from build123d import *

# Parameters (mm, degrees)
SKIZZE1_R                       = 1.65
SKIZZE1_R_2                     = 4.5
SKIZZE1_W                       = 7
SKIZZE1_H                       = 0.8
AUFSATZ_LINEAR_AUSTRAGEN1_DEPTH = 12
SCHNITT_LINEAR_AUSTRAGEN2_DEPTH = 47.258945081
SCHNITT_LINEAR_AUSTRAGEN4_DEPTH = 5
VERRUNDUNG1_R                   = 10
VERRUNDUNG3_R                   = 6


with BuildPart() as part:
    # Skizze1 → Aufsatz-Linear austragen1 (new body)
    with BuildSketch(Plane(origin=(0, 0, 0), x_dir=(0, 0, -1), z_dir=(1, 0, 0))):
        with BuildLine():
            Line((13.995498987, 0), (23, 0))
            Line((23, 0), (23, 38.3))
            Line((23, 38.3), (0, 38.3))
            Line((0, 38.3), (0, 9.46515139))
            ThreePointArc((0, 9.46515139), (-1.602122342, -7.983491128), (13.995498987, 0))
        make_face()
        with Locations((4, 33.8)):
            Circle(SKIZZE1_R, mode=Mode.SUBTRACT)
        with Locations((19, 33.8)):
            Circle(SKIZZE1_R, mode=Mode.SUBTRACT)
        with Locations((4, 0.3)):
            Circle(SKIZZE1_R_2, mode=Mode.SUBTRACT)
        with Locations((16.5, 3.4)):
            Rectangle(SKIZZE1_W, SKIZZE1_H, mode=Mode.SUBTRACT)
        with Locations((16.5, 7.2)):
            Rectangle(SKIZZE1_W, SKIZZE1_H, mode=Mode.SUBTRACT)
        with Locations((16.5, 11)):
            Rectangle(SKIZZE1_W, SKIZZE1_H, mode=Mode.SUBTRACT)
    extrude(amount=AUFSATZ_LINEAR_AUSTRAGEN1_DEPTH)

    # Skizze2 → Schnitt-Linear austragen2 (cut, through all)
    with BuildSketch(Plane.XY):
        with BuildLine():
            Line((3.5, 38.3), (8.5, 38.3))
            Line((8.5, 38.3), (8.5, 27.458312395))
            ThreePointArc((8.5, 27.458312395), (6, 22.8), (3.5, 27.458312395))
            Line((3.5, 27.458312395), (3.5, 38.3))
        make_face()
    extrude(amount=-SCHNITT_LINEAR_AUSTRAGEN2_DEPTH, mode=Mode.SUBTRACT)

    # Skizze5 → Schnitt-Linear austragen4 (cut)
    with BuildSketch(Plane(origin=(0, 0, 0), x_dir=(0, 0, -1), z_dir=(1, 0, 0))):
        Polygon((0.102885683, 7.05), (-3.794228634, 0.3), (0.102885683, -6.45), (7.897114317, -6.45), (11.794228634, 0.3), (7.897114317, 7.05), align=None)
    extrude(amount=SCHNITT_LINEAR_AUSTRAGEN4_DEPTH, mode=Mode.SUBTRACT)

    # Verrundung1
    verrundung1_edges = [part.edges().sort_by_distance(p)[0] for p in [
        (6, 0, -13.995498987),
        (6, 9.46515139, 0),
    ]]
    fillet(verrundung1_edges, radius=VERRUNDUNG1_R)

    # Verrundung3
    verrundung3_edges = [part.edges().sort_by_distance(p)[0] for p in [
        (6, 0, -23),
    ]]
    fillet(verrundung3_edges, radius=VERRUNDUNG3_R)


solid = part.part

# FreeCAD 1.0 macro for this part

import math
import FreeCAD as App
import Part
import Sketcher

V = App.Vector
Q = App.Units.Quantity


def edges_at(feature, points):
    """Names of the edges that pass closest to the given points."""
    edges = feature.Shape.Edges
    near = lambda p: min(range(len(edges)), key=lambda i: edges[i].distToShape(Part.Vertex(*p))[0])
    return sorted({f"Edge{near(p) + 1}" for p in points})

doc = App.newDocument("Part")
params = doc.addObject("Spreadsheet::Sheet", "Params")
for row, (alias, value) in enumerate([
    ("sketch1_diameter", "9 mm"),
    ("sketch1_radius", "10 mm"),
    ("sketch1_diameter2", "3.3 mm"),
    ("sketch1_height", "23 mm"),
    ("sketch1_height2", "7 mm"),
    ("pad1_length", "12 mm"),
    ("sketch2_radius", "3 mm"),
    ("sketch2_width", "5 mm"),
    ("pocket2_length", "5 mm"),
    ("fillet_radius", "10 mm"),
    ("fillet2_radius", "6 mm"),
], start=1):
    params.set(f"A{row}", alias)
    params.set(f"B{row}", "=" + value)
    params.setAlias(f"B{row}", alias)

body = doc.addObject("PartDesign::Body", "Body")

sketch1 = body.newObject("Sketcher::SketchObject", "Sketch")
sketch1.AttachmentSupport = (doc.getObject("YZ_Plane"), [""])
sketch1.MapMode = "FlatFace"
sketch1.addGeometry(Part.LineSegment(V(0, -13.995499, 0), V(0, -23, 0)), False)
sketch1.addGeometry(Part.LineSegment(V(0, -23, 0), V(38.3, -23, 0)), False)
sketch1.addGeometry(Part.LineSegment(V(38.3, -23, 0), V(38.3, 0, 0)), False)
sketch1.addGeometry(Part.LineSegment(V(38.3, 0, 0), V(9.465151, 0, 0)), False)
sketch1.addGeometry(Part.ArcOfCircle(Part.Circle(V(0.3, -4, 0), V(0, 0, 1), 10), math.radians(23.578178), math.radians(268.280869)), False)
sketch1.addGeometry(Part.Circle(V(0.3, -4, 0), V(0, 0, 1), 4.5), False)
sketch1.addGeometry(Part.LineSegment(V(3, -20, 0), V(3, -13, 0)), False)
sketch1.addGeometry(Part.LineSegment(V(3, -13, 0), V(3.8, -13, 0)), False)
sketch1.addGeometry(Part.LineSegment(V(3.8, -13, 0), V(3.8, -20, 0)), False)
sketch1.addGeometry(Part.LineSegment(V(3.8, -20, 0), V(3, -20, 0)), False)
sketch1.addGeometry(Part.LineSegment(V(6.8, -20, 0), V(6.8, -13, 0)), False)
sketch1.addGeometry(Part.LineSegment(V(6.8, -13, 0), V(7.6, -13, 0)), False)
sketch1.addGeometry(Part.LineSegment(V(7.6, -13, 0), V(7.6, -20, 0)), False)
sketch1.addGeometry(Part.LineSegment(V(7.6, -20, 0), V(6.8, -20, 0)), False)
sketch1.addGeometry(Part.LineSegment(V(10.6, -20, 0), V(10.6, -13, 0)), False)
sketch1.addGeometry(Part.LineSegment(V(10.6, -13, 0), V(11.4, -13, 0)), False)
sketch1.addGeometry(Part.LineSegment(V(11.4, -13, 0), V(11.4, -20, 0)), False)
sketch1.addGeometry(Part.LineSegment(V(11.4, -20, 0), V(10.6, -20, 0)), False)
sketch1.addGeometry(Part.Circle(V(33.8, -4, 0), V(0, 0, 1), 1.65), False)
sketch1.addGeometry(Part.Circle(V(33.8, -19, 0), V(0, 0, 1), 1.65), False)
sketch1.addConstraint(Sketcher.Constraint("Coincident", 0, 2, 1, 1))
sketch1.addConstraint(Sketcher.Constraint("Coincident", 1, 2, 2, 1))
sketch1.addConstraint(Sketcher.Constraint("Coincident", 2, 2, 3, 1))
sketch1.addConstraint(Sketcher.Constraint("Coincident", 3, 2, 4, 1))
sketch1.addConstraint(Sketcher.Constraint("Coincident", 4, 2, 0, 1))
sketch1.addConstraint(Sketcher.Constraint("Coincident", 6, 2, 7, 1))
sketch1.addConstraint(Sketcher.Constraint("Coincident", 7, 2, 8, 1))
sketch1.addConstraint(Sketcher.Constraint("Coincident", 8, 2, 9, 1))
sketch1.addConstraint(Sketcher.Constraint("Coincident", 9, 2, 6, 1))
sketch1.addConstraint(Sketcher.Constraint("Coincident", 10, 2, 11, 1))
sketch1.addConstraint(Sketcher.Constraint("Coincident", 11, 2, 12, 1))
sketch1.addConstraint(Sketcher.Constraint("Coincident", 12, 2, 13, 1))
sketch1.addConstraint(Sketcher.Constraint("Coincident", 13, 2, 10, 1))
sketch1.addConstraint(Sketcher.Constraint("Coincident", 14, 2, 15, 1))
sketch1.addConstraint(Sketcher.Constraint("Coincident", 15, 2, 16, 1))
sketch1.addConstraint(Sketcher.Constraint("Coincident", 16, 2, 17, 1))
sketch1.addConstraint(Sketcher.Constraint("Coincident", 17, 2, 14, 1))
sketch1.addConstraint(Sketcher.Constraint("Vertical", 0))
sketch1.addConstraint(Sketcher.Constraint("Horizontal", 1))
sketch1.addConstraint(Sketcher.Constraint("Vertical", 2))
sketch1.addConstraint(Sketcher.Constraint("Horizontal", 3))
sketch1.addConstraint(Sketcher.Constraint("Vertical", 6))
sketch1.addConstraint(Sketcher.Constraint("Horizontal", 7))
sketch1.addConstraint(Sketcher.Constraint("Vertical", 8))
sketch1.addConstraint(Sketcher.Constraint("Horizontal", 9))
sketch1.addConstraint(Sketcher.Constraint("Vertical", 10))
sketch1.addConstraint(Sketcher.Constraint("Horizontal", 11))
sketch1.addConstraint(Sketcher.Constraint("Vertical", 12))
sketch1.addConstraint(Sketcher.Constraint("Horizontal", 13))
sketch1.addConstraint(Sketcher.Constraint("Vertical", 14))
sketch1.addConstraint(Sketcher.Constraint("Horizontal", 15))
sketch1.addConstraint(Sketcher.Constraint("Vertical", 16))
sketch1.addConstraint(Sketcher.Constraint("Horizontal", 17))
sketch1.addConstraint(Sketcher.Constraint("Coincident", 5, 3, 4, 3))
sketch1.addConstraint(Sketcher.Constraint("Equal", 18, 19))
sketch1.addConstraint(Sketcher.Constraint("PointOnObject", 0, 2, -2))
sketch1.addConstraint(Sketcher.Constraint("PointOnObject", 2, 2, -1))
sketch1.addConstraint(Sketcher.Constraint("Horizontal", 5, 3, 18, 3))
sketch1.addConstraint(Sketcher.Constraint("Horizontal", 7, 2, 10, 2))
sketch1.addConstraint(Sketcher.Constraint("Horizontal", 9, 2, 12, 2))
sketch1.addConstraint(Sketcher.Constraint("Horizontal", 11, 2, 14, 2))
sketch1.addConstraint(Sketcher.Constraint("Horizontal", 13, 2, 16, 2))
sketch1.addConstraint(Sketcher.Constraint("Vertical", 18, 3, 19, 3))
sketch1.addConstraint(Sketcher.Constraint("Equal", 9, 11))
sketch1.addConstraint(Sketcher.Constraint("Equal", 13, 15))
sketch1.addConstraint(Sketcher.Constraint("Diameter", 5, Q("9 mm")))
sketch1.addConstraint(Sketcher.Constraint("Radius", 4, Q("10 mm")))
sketch1.addConstraint(Sketcher.Constraint("Diameter", 18, Q("3.3 mm")))
sketch1.addConstraint(Sketcher.Constraint("DistanceY", 2, 1, 2, 2, Q("23 mm")))
sketch1.addConstraint(Sketcher.Constraint("DistanceY", 6, 1, 6, 2, Q("7 mm")))
sketch1.addConstraint(Sketcher.Constraint("DistanceX", 1, 1, 1, 2, Q("38.3 mm")))
sketch1.addConstraint(Sketcher.Constraint("DistanceX", 7, 1, 7, 2, Q("0.8 mm")))
sketch1.addConstraint(Sketcher.Constraint("DistanceY", 4, 3, -1, 1, Q("4 mm")))
sketch1.addConstraint(Sketcher.Constraint("DistanceY", 19, 3, -1, 1, Q("19 mm")))
sketch1.addConstraint(Sketcher.Constraint("DistanceX", -1, 1, 6, 2, Q("3 mm")))
sketch1.addConstraint(Sketcher.Constraint("DistanceY", 6, 2, -1, 1, Q("13 mm")))
sketch1.addConstraint(Sketcher.Constraint("DistanceX", 4, 3, 1, 2, Q("38 mm")))
sketch1.addConstraint(Sketcher.Constraint("DistanceX", 7, 2, 10, 2, Q("3 mm")))
sketch1.addConstraint(Sketcher.Constraint("DistanceX", 11, 2, 14, 2, Q("3 mm")))
sketch1.addConstraint(Sketcher.Constraint("DistanceX", -1, 1, 18, 3, Q("33.8 mm")))
sketch1.setExpression("Constraints[45]", "Params.sketch1_diameter")
sketch1.setExpression("Constraints[46]", "Params.sketch1_radius")
sketch1.setExpression("Constraints[47]", "Params.sketch1_diameter2")
sketch1.setExpression("Constraints[48]", "Params.sketch1_height")
sketch1.setExpression("Constraints[49]", "Params.sketch1_height2")
pad1 = body.newObject("PartDesign::Pad", "Pad")
pad1.Profile = sketch1
pad1.setExpression("Length", "Params.pad1_length")

sketch2 = body.newObject("Sketcher::SketchObject", "Sketch001")
sketch2.AttachmentSupport = (doc.getObject("XY_Plane"), [""])
sketch2.MapMode = "FlatFace"
sketch2.addGeometry(Part.LineSegment(V(8.5, 38.3, 0), V(3.5, 38.3, 0)), False)
sketch2.addGeometry(Part.LineSegment(V(3.5, 38.3, 0), V(3.5, 27.458312, 0)), False)
sketch2.addGeometry(Part.ArcOfCircle(Part.Circle(V(6, 25.8, 0), V(0, 0, 1), 3), math.radians(146.44269), math.radians(393.55731)), False)
sketch2.addGeometry(Part.LineSegment(V(8.5, 27.458312, 0), V(8.5, 38.3, 0)), False)
sketch2.addConstraint(Sketcher.Constraint("Coincident", 0, 2, 1, 1))
sketch2.addConstraint(Sketcher.Constraint("Coincident", 1, 2, 2, 1))
sketch2.addConstraint(Sketcher.Constraint("Coincident", 2, 2, 3, 1))
sketch2.addConstraint(Sketcher.Constraint("Coincident", 3, 2, 0, 1))
sketch2.addConstraint(Sketcher.Constraint("Horizontal", 0))
sketch2.addConstraint(Sketcher.Constraint("Vertical", 1))
sketch2.addConstraint(Sketcher.Constraint("Vertical", 3))
sketch2.addConstraint(Sketcher.Constraint("Horizontal", 1, 2, 2, 2))
sketch2.addConstraint(Sketcher.Constraint("Radius", 2, Q("3 mm")))
sketch2.addConstraint(Sketcher.Constraint("DistanceX", 0, 2, 0, 1, Q("5 mm")))
sketch2.addConstraint(Sketcher.Constraint("DistanceX", -1, 1, 2, 3, Q("6 mm")))
sketch2.addConstraint(Sketcher.Constraint("DistanceY", -1, 1, 2, 3, Q("25.8 mm")))
sketch2.addConstraint(Sketcher.Constraint("DistanceY", -1, 1, 0, 2, Q("38.3 mm")))
sketch2.setExpression("Constraints[8]", "Params.sketch2_radius")
sketch2.setExpression("Constraints[9]", "Params.sketch2_width")
pocket1 = body.newObject("PartDesign::Pocket", "Pocket")
pocket1.Profile = sketch2
pocket1.Type = "ThroughAll"

sketch3 = body.newObject("Sketcher::SketchObject", "Sketch002")
sketch3.AttachmentSupport = (doc.getObject("YZ_Plane"), [""])
sketch3.MapMode = "FlatFace"
sketch3.addGeometry(Part.LineSegment(V(7.05, -0.102886, 0), V(0.3, 3.794229, 0)), False)
sketch3.addGeometry(Part.LineSegment(V(0.3, 3.794229, 0), V(-6.45, -0.102886, 0)), False)
sketch3.addGeometry(Part.LineSegment(V(-6.45, -0.102886, 0), V(-6.45, -7.897114, 0)), False)
sketch3.addGeometry(Part.LineSegment(V(-6.45, -7.897114, 0), V(0.3, -11.794229, 0)), False)
sketch3.addGeometry(Part.LineSegment(V(0.3, -11.794229, 0), V(7.05, -7.897114, 0)), False)
sketch3.addGeometry(Part.LineSegment(V(7.05, -7.897114, 0), V(7.05, -0.102886, 0)), False)
sketch3.addConstraint(Sketcher.Constraint("Coincident", 0, 2, 1, 1))
sketch3.addConstraint(Sketcher.Constraint("Coincident", 1, 2, 2, 1))
sketch3.addConstraint(Sketcher.Constraint("Coincident", 2, 2, 3, 1))
sketch3.addConstraint(Sketcher.Constraint("Coincident", 3, 2, 4, 1))
sketch3.addConstraint(Sketcher.Constraint("Coincident", 4, 2, 5, 1))
sketch3.addConstraint(Sketcher.Constraint("Coincident", 5, 2, 0, 1))
sketch3.addConstraint(Sketcher.Constraint("Vertical", 2))
sketch3.addConstraint(Sketcher.Constraint("Vertical", 5))
sketch3.addConstraint(Sketcher.Constraint("Parallel", 0, 3))
sketch3.addConstraint(Sketcher.Constraint("Parallel", 1, 4))
sketch3.addConstraint(Sketcher.Constraint("Horizontal", 2, 2, 4, 2))
sketch3.addConstraint(Sketcher.Constraint("Horizontal", 1, 2, 5, 2))
sketch3.addConstraint(Sketcher.Constraint("Vertical", 0, 2, 3, 2))
sketch3.addConstraint(Sketcher.Constraint("Angle", 0, Q("150 deg")))
sketch3.addConstraint(Sketcher.Constraint("DistanceX", -1, 1, 0, 2, Q("0.3 mm")))
sketch3.addConstraint(Sketcher.Constraint("DistanceX", 2, 2, 4, 2, Q("13.5 mm")))
sketch3.addConstraint(Sketcher.Constraint("DistanceY", 2, 2, 2, 1, Q("7.794229 mm")))
sketch3.addConstraint(Sketcher.Constraint("DistanceY", -1, 1, 0, 2, Q("3.794229 mm")))
pocket2 = body.newObject("PartDesign::Pocket", "Pocket001")
pocket2.Profile = sketch3
pocket2.setExpression("Length", "Params.pocket2_length")
pocket2.Reversed = True
doc.recompute()

fillet = body.newObject("PartDesign::Fillet", "Fillet")
fillet.Base = (pocket2, edges_at(pocket2, [(6, 0, -13.995), (6, 9.465, 0)]))
fillet.setExpression("Radius", "Params.fillet_radius")
doc.recompute()

fillet2 = body.newObject("PartDesign::Fillet", "Fillet001")
fillet2.Base = (fillet, edges_at(fillet, [(6, 0, -23)]))
fillet2.setExpression("Radius", "Params.fillet2_radius")

doc.recompute()
